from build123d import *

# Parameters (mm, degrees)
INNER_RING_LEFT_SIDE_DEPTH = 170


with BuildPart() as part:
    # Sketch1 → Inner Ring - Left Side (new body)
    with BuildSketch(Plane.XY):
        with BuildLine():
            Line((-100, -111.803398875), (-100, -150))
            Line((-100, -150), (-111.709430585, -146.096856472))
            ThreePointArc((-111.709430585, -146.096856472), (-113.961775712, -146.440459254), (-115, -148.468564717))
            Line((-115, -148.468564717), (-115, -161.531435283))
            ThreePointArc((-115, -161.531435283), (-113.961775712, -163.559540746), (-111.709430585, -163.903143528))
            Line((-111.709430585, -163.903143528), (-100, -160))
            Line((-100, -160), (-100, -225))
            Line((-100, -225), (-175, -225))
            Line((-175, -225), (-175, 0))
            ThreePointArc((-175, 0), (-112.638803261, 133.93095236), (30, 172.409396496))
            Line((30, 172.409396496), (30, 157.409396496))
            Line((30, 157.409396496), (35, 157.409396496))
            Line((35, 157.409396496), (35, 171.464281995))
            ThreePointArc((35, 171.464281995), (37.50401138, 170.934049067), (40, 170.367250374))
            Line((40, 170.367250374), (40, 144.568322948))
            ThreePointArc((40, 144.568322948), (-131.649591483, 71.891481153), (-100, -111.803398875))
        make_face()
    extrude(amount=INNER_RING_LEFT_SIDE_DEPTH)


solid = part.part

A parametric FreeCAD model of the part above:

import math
import FreeCAD as App
import Part
import Sketcher

doc = App.newDocument("Part")
body = doc.addObject("PartDesign::Body", "Body")

sketch1 = doc.addObject("Sketcher::SketchObject", "Sketch")
body.addObject(sketch1)
sketch1.AttachmentSupport = (doc.XY_Plane, [""])
sketch1.MapMode = "FlatFace"
sketch1.addGeometry([
    Part.LineSegment(App.Vector(-100, -150, 0), App.Vector(-100, -111.803399, 0)),
    Part.ArcOfCircle(Part.Circle(App.Vector(0, 0, 0), App.Vector(0, 0, 1), 150), math.radians(74.53399), math.radians(228.189685)),
    Part.LineSegment(App.Vector(40, 144.568323, 0), App.Vector(40, 170.36725, 0)),
    Part.ArcOfCircle(Part.Circle(App.Vector(0, 0, 0), App.Vector(0, 0, 1), 175), math.radians(76.78702), math.radians(78.463041)),
    Part.LineSegment(App.Vector(35, 171.464282, 0), App.Vector(35, 157.409396, 0)),
    Part.LineSegment(App.Vector(35, 157.409396, 0), App.Vector(30, 157.409396, 0)),
    Part.LineSegment(App.Vector(30, 157.409396, 0), App.Vector(30, 172.409396, 0)),
    Part.ArcOfCircle(Part.Circle(App.Vector(0, 0, 0), App.Vector(0, 0, 1), 175), math.radians(80.12911), math.radians(180)),
    Part.LineSegment(App.Vector(-175, 0, 0), App.Vector(-175, -225, 0)),
    Part.LineSegment(App.Vector(-175, -225, 0), App.Vector(-100, -225, 0)),
    Part.LineSegment(App.Vector(-100, -225, 0), App.Vector(-100, -160, 0)),
    Part.LineSegment(App.Vector(-100, -160, 0), App.Vector(-111.709431, -163.903144, 0)),
    Part.ArcOfCircle(Part.Circle(App.Vector(-112.5, -161.531435, 0), App.Vector(0, 0, 1), 2.5), math.radians(180), math.radians(288.434949)),
    Part.LineSegment(App.Vector(-115, -161.531435, 0), App.Vector(-115, -148.468565, 0)),
    Part.ArcOfCircle(Part.Circle(App.Vector(-112.5, -148.468565, 0), App.Vector(0, 0, 1), 2.5), math.radians(71.565051), math.radians(180)),
    Part.LineSegment(App.Vector(-111.709431, -146.096856, 0), App.Vector(-100, -150, 0)),
], False)
sketch1.addConstraint([
    Sketcher.Constraint("Coincident", 0, 2, 1, 2),
    Sketcher.Constraint("Coincident", 1, 1, 2, 1),
    Sketcher.Constraint("Coincident", 2, 2, 3, 1),
    Sketcher.Constraint("Coincident", 3, 2, 4, 1),
    Sketcher.Constraint("Coincident", 4, 2, 5, 1),
    Sketcher.Constraint("Coincident", 5, 2, 6, 1),
    Sketcher.Constraint("Coincident", 6, 2, 7, 1),
    Sketcher.Constraint("Tangent", 7, 2, 8, 1),
    Sketcher.Constraint("Coincident", 8, 2, 9, 1),
    Sketcher.Constraint("Coincident", 9, 2, 10, 1),
    Sketcher.Constraint("Coincident", 10, 2, 11, 1),
    Sketcher.Constraint("Tangent", 11, 2, 12, 2),
    Sketcher.Constraint("Tangent", 12, 1, 13, 1),
    Sketcher.Constraint("Tangent", 13, 2, 14, 2),
    Sketcher.Constraint("Tangent", 14, 1, 15, 1),
    Sketcher.Constraint("Coincident", 15, 2, 0, 1),
    Sketcher.Constraint("Vertical", 0),
    Sketcher.Constraint("Vertical", 2),
    Sketcher.Constraint("Vertical", 4),
    Sketcher.Constraint("Horizontal", 5),
    Sketcher.Constraint("Vertical", 6),
    Sketcher.Constraint("Vertical", 8),
    Sketcher.Constraint("Horizontal", 9),
    Sketcher.Constraint("Vertical", 10),
    Sketcher.Constraint("Vertical", 13),
    Sketcher.Constraint("Coincident", 1, 3, -1, 1),
    Sketcher.Constraint("Coincident", 3, 3, -1, 1),
    Sketcher.Constraint("Coincident", 7, 3, -1, 1),
    Sketcher.Constraint("Equal", 3, 7),
    Sketcher.Constraint("Equal", 12, 14),
    Sketcher.Constraint("Vertical", 0, 2, 9, 2),
    Sketcher.Constraint("Vertical", 11, 2, 14, 1),
    Sketcher.Constraint("Radius", 1, 150.0),
    Sketcher.Constraint("Radius", 3, 175.0),
    Sketcher.Constraint("Radius", 12, 2.5),
    Sketcher.Constraint("DistanceX", 5, 2, 5, 1, 5.0),
    Sketcher.Constraint("DistanceX", 9, 1, 9, 2, 75.0),
    Sketcher.Constraint("DistanceY", 6, 1, 6, 2, 15.0),
    Sketcher.Constraint("DistanceY", 8, 2, 8, 1, 225.0),
    Sketcher.Constraint("DistanceY", 10, 1, 10, 2, 65.0),
    Sketcher.Constraint("DistanceX", -1, 1, 1, 1, 40.0),
    Sketcher.Constraint("DistanceX", -1, 1, 3, 2, 35.0),
    Sketcher.Constraint("DistanceX", 12, 1, -1, 1, 115.0),
    Sketcher.Constraint("DistanceY", 15, 2, -1, 1, 150.0),
    Sketcher.Constraint("DistanceY", 13, 1, 13, 2, 13.062871),
])
pad1 = doc.addObject("PartDesign::Pad", "Pad")
body.addObject(pad1)
pad1.Profile = sketch1
pad1.Length = 170

doc.recompute()
